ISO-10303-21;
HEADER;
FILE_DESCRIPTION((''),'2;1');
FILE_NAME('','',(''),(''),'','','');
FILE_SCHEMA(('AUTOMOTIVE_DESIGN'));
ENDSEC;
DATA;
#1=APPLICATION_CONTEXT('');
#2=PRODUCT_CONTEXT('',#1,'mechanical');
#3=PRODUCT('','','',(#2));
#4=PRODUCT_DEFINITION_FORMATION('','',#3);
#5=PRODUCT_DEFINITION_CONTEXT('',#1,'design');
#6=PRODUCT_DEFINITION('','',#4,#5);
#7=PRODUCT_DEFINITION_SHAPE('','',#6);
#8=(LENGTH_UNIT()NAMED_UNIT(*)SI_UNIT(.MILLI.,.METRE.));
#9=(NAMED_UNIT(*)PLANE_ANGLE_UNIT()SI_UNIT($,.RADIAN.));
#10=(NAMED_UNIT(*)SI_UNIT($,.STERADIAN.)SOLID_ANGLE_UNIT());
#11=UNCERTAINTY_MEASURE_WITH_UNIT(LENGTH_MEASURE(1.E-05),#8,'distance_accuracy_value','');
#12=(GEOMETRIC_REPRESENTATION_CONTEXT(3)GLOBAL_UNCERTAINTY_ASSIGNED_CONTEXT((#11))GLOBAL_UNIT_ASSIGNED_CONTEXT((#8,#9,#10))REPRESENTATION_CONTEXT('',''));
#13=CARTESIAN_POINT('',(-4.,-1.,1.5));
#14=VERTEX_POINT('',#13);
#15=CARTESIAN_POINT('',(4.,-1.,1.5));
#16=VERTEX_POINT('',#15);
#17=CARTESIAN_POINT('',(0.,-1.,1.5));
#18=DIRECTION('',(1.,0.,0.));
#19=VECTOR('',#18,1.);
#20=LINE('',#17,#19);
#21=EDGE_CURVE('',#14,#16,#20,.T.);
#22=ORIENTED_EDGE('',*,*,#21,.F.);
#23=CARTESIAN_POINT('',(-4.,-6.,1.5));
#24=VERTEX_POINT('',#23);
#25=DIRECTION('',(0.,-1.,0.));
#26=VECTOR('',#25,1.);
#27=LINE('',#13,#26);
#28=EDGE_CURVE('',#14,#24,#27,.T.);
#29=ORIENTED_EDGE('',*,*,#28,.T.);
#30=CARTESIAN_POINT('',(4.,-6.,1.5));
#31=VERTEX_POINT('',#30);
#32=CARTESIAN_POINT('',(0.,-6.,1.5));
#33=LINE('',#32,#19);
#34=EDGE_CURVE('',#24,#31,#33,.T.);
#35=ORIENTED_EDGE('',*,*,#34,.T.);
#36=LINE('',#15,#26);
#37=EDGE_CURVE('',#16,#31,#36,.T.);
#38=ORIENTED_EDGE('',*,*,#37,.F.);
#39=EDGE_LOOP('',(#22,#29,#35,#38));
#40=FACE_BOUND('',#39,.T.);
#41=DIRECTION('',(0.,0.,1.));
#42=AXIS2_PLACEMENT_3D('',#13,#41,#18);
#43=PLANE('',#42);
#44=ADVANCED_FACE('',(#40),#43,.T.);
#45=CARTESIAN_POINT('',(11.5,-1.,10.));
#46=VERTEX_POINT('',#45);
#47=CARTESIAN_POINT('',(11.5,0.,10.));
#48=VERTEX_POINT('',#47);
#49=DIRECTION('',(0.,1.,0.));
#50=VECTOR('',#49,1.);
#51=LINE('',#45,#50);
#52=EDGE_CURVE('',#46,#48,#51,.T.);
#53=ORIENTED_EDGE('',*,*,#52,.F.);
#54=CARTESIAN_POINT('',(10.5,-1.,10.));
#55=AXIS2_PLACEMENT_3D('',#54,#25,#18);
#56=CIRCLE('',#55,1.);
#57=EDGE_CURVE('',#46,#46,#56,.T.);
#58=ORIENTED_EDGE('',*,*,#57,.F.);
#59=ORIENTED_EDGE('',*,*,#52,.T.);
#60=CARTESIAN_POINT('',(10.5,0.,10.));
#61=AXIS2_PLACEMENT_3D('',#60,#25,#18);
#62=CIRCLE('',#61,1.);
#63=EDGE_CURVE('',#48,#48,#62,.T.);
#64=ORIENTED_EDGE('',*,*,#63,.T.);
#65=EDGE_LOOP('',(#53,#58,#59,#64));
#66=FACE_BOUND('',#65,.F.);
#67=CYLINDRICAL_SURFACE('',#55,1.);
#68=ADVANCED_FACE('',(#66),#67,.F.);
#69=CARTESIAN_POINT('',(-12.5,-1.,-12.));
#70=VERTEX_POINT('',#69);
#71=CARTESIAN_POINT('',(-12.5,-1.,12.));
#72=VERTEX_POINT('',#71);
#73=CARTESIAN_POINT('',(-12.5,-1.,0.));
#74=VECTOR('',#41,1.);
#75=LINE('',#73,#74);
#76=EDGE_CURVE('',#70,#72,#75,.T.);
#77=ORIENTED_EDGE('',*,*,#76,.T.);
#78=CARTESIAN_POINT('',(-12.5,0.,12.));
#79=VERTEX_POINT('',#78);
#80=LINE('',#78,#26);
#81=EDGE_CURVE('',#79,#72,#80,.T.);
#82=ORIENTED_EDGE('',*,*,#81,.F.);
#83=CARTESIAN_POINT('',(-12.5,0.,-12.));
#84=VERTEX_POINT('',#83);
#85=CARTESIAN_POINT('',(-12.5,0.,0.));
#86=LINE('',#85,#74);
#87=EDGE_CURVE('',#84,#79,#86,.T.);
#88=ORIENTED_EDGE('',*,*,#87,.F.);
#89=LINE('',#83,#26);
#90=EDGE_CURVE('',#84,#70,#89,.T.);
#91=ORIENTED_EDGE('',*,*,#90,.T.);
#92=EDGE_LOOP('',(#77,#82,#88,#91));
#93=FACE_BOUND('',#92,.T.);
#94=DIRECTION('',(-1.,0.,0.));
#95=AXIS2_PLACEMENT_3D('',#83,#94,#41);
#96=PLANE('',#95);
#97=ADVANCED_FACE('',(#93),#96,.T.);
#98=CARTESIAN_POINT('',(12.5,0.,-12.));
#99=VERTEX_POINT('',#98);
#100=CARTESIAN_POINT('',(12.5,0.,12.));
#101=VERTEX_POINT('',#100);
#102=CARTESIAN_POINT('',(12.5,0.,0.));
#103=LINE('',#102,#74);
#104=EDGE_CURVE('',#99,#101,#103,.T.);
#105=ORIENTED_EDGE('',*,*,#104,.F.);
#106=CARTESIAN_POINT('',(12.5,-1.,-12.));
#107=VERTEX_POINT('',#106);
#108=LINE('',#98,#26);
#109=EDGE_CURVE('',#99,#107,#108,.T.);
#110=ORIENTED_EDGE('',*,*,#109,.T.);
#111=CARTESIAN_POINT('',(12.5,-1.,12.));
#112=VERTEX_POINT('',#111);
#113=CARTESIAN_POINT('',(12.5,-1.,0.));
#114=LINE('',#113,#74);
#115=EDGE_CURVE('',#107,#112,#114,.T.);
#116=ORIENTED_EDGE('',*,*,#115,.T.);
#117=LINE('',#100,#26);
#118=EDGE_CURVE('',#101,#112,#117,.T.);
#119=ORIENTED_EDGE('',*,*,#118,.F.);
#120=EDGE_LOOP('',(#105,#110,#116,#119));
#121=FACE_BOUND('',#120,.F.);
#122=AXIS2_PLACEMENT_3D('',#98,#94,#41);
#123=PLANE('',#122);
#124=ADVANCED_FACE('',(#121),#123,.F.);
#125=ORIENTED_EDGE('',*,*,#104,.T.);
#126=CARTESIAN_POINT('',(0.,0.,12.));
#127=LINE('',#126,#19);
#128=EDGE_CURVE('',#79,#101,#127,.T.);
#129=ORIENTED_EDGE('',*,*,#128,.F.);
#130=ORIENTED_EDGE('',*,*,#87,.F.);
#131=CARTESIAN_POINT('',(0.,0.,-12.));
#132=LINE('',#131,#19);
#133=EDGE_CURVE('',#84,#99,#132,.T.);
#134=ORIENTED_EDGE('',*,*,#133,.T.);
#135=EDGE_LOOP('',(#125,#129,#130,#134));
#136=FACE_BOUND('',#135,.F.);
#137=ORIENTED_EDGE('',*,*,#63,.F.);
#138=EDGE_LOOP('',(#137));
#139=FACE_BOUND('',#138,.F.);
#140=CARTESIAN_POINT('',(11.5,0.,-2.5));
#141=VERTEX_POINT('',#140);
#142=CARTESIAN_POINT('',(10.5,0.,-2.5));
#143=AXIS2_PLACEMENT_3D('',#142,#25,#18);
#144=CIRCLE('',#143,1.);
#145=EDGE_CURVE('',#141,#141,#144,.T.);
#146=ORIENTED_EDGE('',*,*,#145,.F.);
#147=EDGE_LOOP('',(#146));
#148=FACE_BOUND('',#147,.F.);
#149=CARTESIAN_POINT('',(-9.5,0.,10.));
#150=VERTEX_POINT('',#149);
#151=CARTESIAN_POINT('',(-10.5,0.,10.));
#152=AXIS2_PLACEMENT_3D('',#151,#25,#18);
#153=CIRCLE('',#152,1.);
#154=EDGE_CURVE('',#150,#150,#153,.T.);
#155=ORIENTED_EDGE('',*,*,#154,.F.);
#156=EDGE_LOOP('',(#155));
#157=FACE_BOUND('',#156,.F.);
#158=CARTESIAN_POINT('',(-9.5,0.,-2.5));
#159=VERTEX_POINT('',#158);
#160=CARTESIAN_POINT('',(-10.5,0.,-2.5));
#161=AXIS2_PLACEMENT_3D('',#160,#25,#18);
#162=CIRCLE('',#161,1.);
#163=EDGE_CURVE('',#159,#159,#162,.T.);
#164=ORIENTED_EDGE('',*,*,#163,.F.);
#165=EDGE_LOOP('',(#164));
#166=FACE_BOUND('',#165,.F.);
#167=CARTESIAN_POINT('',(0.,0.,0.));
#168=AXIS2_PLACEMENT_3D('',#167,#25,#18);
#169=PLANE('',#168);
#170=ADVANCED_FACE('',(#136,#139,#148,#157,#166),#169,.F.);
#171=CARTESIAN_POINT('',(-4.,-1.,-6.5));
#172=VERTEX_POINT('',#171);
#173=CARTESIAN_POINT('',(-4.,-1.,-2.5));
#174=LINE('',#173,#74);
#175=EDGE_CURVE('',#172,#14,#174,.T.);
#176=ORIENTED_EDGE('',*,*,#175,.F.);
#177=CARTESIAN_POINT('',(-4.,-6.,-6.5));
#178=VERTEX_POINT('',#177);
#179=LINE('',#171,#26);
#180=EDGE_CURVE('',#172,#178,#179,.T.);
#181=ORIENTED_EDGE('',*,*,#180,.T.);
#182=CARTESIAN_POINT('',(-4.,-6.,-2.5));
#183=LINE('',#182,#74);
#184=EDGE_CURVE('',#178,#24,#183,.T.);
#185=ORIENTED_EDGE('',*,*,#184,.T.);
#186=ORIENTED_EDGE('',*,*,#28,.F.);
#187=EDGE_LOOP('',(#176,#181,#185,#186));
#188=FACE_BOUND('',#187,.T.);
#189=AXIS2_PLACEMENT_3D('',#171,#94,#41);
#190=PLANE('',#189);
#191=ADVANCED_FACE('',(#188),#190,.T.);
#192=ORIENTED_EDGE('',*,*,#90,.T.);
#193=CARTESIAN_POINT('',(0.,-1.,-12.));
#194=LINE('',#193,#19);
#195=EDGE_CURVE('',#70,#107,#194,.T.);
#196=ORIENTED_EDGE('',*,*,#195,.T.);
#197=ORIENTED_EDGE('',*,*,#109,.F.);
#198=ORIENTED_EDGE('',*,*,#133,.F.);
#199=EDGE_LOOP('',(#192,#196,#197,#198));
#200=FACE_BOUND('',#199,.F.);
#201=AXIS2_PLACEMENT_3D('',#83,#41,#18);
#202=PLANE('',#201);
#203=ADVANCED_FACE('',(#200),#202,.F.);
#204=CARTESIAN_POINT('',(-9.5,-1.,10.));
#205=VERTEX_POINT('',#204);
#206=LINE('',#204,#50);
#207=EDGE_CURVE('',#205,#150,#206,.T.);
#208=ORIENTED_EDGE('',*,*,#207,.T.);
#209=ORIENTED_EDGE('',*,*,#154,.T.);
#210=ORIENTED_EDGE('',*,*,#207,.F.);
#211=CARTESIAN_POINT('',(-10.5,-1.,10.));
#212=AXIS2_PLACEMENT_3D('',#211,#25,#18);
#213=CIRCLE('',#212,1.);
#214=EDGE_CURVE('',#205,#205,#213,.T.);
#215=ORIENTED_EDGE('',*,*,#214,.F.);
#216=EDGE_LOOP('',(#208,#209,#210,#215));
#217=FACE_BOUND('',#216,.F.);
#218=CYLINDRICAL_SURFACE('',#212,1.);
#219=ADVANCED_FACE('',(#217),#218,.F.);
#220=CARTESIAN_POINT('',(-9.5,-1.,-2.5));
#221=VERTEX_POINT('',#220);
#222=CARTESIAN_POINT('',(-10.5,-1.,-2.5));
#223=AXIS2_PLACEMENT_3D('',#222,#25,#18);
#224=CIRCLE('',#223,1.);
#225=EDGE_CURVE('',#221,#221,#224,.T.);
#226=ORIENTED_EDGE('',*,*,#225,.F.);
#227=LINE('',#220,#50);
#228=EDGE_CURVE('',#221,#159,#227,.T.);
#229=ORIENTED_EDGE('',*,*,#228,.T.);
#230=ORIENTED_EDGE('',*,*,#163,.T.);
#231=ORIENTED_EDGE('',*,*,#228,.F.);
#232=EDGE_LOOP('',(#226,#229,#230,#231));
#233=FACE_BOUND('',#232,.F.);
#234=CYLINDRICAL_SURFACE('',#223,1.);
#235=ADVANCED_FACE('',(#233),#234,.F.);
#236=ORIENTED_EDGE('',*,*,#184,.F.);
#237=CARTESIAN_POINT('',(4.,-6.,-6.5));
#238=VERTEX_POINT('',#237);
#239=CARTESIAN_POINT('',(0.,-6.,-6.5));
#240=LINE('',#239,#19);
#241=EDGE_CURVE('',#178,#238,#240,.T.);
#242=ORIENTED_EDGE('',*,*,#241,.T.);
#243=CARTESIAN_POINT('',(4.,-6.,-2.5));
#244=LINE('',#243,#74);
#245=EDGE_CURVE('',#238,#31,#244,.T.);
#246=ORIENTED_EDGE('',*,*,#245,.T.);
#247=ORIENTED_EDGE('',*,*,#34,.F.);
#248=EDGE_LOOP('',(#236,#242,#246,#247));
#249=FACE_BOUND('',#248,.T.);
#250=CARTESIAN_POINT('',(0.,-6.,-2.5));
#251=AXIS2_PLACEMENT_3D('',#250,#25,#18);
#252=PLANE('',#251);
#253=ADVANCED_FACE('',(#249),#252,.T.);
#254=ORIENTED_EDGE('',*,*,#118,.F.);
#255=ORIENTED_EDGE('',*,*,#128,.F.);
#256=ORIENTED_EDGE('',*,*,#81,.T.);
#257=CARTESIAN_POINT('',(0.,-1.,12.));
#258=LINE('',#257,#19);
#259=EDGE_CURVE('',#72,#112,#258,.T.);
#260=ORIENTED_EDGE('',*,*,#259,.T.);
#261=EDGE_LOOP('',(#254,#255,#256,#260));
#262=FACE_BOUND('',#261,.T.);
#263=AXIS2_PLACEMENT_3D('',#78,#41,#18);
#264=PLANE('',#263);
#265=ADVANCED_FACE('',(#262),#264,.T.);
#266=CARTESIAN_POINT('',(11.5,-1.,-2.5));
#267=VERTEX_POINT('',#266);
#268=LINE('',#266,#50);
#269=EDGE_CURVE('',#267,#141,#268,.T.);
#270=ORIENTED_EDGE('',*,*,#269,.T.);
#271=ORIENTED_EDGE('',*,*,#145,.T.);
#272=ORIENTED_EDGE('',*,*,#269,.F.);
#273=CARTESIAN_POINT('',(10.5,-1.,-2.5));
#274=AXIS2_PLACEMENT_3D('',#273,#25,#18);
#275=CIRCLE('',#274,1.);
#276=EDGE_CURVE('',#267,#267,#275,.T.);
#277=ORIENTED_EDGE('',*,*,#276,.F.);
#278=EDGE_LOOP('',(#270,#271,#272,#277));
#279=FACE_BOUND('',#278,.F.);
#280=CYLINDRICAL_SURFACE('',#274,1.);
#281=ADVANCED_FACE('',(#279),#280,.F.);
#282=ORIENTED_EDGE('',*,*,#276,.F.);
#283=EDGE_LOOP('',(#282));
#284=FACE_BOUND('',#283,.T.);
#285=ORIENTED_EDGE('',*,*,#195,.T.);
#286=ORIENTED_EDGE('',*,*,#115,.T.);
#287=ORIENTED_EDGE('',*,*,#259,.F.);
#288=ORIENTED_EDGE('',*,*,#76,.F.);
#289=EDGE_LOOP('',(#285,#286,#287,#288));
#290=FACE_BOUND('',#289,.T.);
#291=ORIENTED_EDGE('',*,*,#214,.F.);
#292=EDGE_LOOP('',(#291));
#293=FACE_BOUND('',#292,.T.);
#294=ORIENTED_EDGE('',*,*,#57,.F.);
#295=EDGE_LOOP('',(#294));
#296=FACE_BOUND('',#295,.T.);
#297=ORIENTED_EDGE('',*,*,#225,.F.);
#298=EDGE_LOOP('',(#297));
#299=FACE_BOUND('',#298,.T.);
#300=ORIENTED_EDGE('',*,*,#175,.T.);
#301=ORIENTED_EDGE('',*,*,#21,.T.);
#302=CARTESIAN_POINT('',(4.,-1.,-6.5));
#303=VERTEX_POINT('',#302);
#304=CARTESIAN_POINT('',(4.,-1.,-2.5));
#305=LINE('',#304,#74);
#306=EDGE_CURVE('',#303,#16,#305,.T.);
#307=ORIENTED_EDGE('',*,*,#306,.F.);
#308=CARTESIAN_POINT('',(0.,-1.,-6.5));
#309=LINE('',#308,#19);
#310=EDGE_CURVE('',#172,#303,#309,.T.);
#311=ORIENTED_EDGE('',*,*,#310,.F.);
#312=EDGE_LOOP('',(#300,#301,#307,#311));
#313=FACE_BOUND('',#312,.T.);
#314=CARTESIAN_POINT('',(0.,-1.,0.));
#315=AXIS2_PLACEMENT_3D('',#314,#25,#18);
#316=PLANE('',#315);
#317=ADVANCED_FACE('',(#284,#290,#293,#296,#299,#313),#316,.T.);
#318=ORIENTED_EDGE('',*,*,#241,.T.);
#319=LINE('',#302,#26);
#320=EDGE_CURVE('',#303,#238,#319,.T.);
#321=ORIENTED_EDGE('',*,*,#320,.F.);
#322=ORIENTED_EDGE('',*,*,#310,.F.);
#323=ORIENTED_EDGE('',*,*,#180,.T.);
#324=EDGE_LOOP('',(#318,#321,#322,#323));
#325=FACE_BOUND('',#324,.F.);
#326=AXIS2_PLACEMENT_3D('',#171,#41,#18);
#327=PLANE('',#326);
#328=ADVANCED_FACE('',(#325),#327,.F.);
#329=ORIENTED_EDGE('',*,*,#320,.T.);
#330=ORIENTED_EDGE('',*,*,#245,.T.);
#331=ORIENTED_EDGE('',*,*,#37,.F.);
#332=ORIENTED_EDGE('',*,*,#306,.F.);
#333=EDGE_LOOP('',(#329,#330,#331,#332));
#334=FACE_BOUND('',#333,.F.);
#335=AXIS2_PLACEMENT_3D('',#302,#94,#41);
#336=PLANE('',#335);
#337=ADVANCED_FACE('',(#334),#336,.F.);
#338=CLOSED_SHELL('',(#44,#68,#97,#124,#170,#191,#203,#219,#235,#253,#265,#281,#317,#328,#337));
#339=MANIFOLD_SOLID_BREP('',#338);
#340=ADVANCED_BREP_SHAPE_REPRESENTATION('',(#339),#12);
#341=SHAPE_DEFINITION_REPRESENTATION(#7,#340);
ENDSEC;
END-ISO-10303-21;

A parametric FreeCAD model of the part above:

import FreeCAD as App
import Part
import Sketcher
from FreeCAD import Vector

doc = App.newDocument("Part")
body = doc.addObject("PartDesign::Body", "Body")

sketch1 = body.newObject("Sketcher::SketchObject", "Sketch")
sketch1.AttachmentSupport = (doc.getObject("XZ_Plane"), [""])
sketch1.MapMode = "FlatFace"
sketch1.addGeometry(Part.LineSegment(Vector(-12, 12, 0), Vector(-12, -12, 0)), False)
sketch1.addGeometry(Part.LineSegment(Vector(-12, -12, 0), Vector(12, -12, 0)), False)
sketch1.addGeometry(Part.LineSegment(Vector(12, -12, 0), Vector(12, 12, 0)), False)
sketch1.addGeometry(Part.LineSegment(Vector(12, 12, 0), Vector(-12, 12, 0)), False)
sketch1.addConstraint(Sketcher.Constraint("Coincident", 0, 2, 1, 1))
sketch1.addConstraint(Sketcher.Constraint("Coincident", 1, 2, 2, 1))
sketch1.addConstraint(Sketcher.Constraint("Coincident", 2, 2, 3, 1))
sketch1.addConstraint(Sketcher.Constraint("Coincident", 3, 2, 0, 1))
sketch1.addConstraint(Sketcher.Constraint("Vertical", 0))
sketch1.addConstraint(Sketcher.Constraint("Horizontal", 1))
sketch1.addConstraint(Sketcher.Constraint("Vertical", 2))
sketch1.addConstraint(Sketcher.Constraint("Horizontal", 3))
sketch1.addConstraint(Sketcher.Constraint("Symmetric", 0, 2, 2, 2, -1, 1))
sketch1.addConstraint(Sketcher.Constraint("DistanceX", 1, 1, 1, 2, 25.0))
sketch1.addConstraint(Sketcher.Constraint("DistanceY", 0, 2, 0, 1, 24.0))
pad1 = body.newObject("PartDesign::Pad", "Pad")
pad1.Profile = sketch1
pad1.Length = 1

sketch2 = body.newObject("Sketcher::SketchObject", "Sketch001")
sketch2.AttachmentSupport = (doc.getObject("XZ_Plane"), [""])
sketch2.MapMode = "FlatFace"
sketch2.AttachmentOffset = App.Placement(Vector(0, 0, 1), App.Rotation())
sketch2.addGeometry(Part.LineSegment(Vector(-4, 2, 0), Vector(-4, -6, 0)), False)
sketch2.addGeometry(Part.LineSegment(Vector(-4, -6, 0), Vector(4, -6, 0)), False)
sketch2.addGeometry(Part.LineSegment(Vector(4, -6, 0), Vector(4, 2, 0)), False)
sketch2.addGeometry(Part.LineSegment(Vector(4, 2, 0), Vector(-4, 2, 0)), False)
sketch2.addConstraint(Sketcher.Constraint("Coincident", 0, 2, 1, 1))
sketch2.addConstraint(Sketcher.Constraint("Coincident", 1, 2, 2, 1))
sketch2.addConstraint(Sketcher.Constraint("Coincident", 2, 2, 3, 1))
sketch2.addConstraint(Sketcher.Constraint("Coincident", 3, 2, 0, 1))
sketch2.addConstraint(Sketcher.Constraint("Vertical", 0))
sketch2.addConstraint(Sketcher.Constraint("Horizontal", 1))
sketch2.addConstraint(Sketcher.Constraint("Vertical", 2))
sketch2.addConstraint(Sketcher.Constraint("Horizontal", 3))
sketch2.addConstraint(Sketcher.Constraint("Equal", 3, 0))
sketch2.addConstraint(Sketcher.Constraint("DistanceX", 1, 1, 1, 2, 8.0))
sketch2.addConstraint(Sketcher.Constraint("DistanceX", 0, 2, -1, 1, 4.0))
sketch2.addConstraint(Sketcher.Constraint("DistanceY", 0, 2, -1, 1, 6.5))
pad2 = body.newObject("PartDesign::Pad", "Pad001")
pad2.Profile = sketch2
pad2.Length = 5

sketch3 = body.newObject("Sketcher::SketchObject", "Sketch002")
sketch3.AttachmentSupport = (doc.getObject("XZ_Plane"), [""])
sketch3.MapMode = "FlatFace"
sketch3.AttachmentOffset = App.Placement(Vector(0, 0, 1), App.Rotation())
sketch3.addGeometry(Part.Circle(Vector(10.5, 10, 0), Vector(0, 0, 1), 1), False)
sketch3.addGeometry(Part.Circle(Vector(-10.5, 10, 0), Vector(0, 0, 1), 1), False)
sketch3.addGeometry(Part.Circle(Vector(-10.5, -2.5, 0), Vector(0, 0, 1), 1), False)
sketch3.addGeometry(Part.Circle(Vector(10.5, -2.5, 0), Vector(0, 0, 1), 1), False)
sketch3.addConstraint(Sketcher.Constraint("Equal", 0, 1))
sketch3.addConstraint(Sketcher.Constraint("Equal", 1, 2))
sketch3.addConstraint(Sketcher.Constraint("Equal", 2, 3))
sketch3.addConstraint(Sketcher.Constraint("Symmetric", 0, 3, 1, 3, -2))
sketch3.addConstraint(Sketcher.Constraint("Symmetric", 2, 3, 3, 3, -2))
sketch3.addConstraint(Sketcher.Constraint("Vertical", 1, 3, 2, 3))
sketch3.addConstraint(Sketcher.Constraint("Diameter", 0, 2.0))
sketch3.addConstraint(Sketcher.Constraint("DistanceY", -1, 1, 0, 3, 10.0))
sketch3.addConstraint(Sketcher.Constraint("DistanceX", 1, 3, 0, 3, 21.0))
sketch3.addConstraint(Sketcher.Constraint("DistanceY", 2, 3, -1, 1, 2.5))
pocket1 = body.newObject("PartDesign::Pocket", "Pocket")
pocket1.Profile = sketch3
pocket1.Type = "ThroughAll"

doc.recompute()
